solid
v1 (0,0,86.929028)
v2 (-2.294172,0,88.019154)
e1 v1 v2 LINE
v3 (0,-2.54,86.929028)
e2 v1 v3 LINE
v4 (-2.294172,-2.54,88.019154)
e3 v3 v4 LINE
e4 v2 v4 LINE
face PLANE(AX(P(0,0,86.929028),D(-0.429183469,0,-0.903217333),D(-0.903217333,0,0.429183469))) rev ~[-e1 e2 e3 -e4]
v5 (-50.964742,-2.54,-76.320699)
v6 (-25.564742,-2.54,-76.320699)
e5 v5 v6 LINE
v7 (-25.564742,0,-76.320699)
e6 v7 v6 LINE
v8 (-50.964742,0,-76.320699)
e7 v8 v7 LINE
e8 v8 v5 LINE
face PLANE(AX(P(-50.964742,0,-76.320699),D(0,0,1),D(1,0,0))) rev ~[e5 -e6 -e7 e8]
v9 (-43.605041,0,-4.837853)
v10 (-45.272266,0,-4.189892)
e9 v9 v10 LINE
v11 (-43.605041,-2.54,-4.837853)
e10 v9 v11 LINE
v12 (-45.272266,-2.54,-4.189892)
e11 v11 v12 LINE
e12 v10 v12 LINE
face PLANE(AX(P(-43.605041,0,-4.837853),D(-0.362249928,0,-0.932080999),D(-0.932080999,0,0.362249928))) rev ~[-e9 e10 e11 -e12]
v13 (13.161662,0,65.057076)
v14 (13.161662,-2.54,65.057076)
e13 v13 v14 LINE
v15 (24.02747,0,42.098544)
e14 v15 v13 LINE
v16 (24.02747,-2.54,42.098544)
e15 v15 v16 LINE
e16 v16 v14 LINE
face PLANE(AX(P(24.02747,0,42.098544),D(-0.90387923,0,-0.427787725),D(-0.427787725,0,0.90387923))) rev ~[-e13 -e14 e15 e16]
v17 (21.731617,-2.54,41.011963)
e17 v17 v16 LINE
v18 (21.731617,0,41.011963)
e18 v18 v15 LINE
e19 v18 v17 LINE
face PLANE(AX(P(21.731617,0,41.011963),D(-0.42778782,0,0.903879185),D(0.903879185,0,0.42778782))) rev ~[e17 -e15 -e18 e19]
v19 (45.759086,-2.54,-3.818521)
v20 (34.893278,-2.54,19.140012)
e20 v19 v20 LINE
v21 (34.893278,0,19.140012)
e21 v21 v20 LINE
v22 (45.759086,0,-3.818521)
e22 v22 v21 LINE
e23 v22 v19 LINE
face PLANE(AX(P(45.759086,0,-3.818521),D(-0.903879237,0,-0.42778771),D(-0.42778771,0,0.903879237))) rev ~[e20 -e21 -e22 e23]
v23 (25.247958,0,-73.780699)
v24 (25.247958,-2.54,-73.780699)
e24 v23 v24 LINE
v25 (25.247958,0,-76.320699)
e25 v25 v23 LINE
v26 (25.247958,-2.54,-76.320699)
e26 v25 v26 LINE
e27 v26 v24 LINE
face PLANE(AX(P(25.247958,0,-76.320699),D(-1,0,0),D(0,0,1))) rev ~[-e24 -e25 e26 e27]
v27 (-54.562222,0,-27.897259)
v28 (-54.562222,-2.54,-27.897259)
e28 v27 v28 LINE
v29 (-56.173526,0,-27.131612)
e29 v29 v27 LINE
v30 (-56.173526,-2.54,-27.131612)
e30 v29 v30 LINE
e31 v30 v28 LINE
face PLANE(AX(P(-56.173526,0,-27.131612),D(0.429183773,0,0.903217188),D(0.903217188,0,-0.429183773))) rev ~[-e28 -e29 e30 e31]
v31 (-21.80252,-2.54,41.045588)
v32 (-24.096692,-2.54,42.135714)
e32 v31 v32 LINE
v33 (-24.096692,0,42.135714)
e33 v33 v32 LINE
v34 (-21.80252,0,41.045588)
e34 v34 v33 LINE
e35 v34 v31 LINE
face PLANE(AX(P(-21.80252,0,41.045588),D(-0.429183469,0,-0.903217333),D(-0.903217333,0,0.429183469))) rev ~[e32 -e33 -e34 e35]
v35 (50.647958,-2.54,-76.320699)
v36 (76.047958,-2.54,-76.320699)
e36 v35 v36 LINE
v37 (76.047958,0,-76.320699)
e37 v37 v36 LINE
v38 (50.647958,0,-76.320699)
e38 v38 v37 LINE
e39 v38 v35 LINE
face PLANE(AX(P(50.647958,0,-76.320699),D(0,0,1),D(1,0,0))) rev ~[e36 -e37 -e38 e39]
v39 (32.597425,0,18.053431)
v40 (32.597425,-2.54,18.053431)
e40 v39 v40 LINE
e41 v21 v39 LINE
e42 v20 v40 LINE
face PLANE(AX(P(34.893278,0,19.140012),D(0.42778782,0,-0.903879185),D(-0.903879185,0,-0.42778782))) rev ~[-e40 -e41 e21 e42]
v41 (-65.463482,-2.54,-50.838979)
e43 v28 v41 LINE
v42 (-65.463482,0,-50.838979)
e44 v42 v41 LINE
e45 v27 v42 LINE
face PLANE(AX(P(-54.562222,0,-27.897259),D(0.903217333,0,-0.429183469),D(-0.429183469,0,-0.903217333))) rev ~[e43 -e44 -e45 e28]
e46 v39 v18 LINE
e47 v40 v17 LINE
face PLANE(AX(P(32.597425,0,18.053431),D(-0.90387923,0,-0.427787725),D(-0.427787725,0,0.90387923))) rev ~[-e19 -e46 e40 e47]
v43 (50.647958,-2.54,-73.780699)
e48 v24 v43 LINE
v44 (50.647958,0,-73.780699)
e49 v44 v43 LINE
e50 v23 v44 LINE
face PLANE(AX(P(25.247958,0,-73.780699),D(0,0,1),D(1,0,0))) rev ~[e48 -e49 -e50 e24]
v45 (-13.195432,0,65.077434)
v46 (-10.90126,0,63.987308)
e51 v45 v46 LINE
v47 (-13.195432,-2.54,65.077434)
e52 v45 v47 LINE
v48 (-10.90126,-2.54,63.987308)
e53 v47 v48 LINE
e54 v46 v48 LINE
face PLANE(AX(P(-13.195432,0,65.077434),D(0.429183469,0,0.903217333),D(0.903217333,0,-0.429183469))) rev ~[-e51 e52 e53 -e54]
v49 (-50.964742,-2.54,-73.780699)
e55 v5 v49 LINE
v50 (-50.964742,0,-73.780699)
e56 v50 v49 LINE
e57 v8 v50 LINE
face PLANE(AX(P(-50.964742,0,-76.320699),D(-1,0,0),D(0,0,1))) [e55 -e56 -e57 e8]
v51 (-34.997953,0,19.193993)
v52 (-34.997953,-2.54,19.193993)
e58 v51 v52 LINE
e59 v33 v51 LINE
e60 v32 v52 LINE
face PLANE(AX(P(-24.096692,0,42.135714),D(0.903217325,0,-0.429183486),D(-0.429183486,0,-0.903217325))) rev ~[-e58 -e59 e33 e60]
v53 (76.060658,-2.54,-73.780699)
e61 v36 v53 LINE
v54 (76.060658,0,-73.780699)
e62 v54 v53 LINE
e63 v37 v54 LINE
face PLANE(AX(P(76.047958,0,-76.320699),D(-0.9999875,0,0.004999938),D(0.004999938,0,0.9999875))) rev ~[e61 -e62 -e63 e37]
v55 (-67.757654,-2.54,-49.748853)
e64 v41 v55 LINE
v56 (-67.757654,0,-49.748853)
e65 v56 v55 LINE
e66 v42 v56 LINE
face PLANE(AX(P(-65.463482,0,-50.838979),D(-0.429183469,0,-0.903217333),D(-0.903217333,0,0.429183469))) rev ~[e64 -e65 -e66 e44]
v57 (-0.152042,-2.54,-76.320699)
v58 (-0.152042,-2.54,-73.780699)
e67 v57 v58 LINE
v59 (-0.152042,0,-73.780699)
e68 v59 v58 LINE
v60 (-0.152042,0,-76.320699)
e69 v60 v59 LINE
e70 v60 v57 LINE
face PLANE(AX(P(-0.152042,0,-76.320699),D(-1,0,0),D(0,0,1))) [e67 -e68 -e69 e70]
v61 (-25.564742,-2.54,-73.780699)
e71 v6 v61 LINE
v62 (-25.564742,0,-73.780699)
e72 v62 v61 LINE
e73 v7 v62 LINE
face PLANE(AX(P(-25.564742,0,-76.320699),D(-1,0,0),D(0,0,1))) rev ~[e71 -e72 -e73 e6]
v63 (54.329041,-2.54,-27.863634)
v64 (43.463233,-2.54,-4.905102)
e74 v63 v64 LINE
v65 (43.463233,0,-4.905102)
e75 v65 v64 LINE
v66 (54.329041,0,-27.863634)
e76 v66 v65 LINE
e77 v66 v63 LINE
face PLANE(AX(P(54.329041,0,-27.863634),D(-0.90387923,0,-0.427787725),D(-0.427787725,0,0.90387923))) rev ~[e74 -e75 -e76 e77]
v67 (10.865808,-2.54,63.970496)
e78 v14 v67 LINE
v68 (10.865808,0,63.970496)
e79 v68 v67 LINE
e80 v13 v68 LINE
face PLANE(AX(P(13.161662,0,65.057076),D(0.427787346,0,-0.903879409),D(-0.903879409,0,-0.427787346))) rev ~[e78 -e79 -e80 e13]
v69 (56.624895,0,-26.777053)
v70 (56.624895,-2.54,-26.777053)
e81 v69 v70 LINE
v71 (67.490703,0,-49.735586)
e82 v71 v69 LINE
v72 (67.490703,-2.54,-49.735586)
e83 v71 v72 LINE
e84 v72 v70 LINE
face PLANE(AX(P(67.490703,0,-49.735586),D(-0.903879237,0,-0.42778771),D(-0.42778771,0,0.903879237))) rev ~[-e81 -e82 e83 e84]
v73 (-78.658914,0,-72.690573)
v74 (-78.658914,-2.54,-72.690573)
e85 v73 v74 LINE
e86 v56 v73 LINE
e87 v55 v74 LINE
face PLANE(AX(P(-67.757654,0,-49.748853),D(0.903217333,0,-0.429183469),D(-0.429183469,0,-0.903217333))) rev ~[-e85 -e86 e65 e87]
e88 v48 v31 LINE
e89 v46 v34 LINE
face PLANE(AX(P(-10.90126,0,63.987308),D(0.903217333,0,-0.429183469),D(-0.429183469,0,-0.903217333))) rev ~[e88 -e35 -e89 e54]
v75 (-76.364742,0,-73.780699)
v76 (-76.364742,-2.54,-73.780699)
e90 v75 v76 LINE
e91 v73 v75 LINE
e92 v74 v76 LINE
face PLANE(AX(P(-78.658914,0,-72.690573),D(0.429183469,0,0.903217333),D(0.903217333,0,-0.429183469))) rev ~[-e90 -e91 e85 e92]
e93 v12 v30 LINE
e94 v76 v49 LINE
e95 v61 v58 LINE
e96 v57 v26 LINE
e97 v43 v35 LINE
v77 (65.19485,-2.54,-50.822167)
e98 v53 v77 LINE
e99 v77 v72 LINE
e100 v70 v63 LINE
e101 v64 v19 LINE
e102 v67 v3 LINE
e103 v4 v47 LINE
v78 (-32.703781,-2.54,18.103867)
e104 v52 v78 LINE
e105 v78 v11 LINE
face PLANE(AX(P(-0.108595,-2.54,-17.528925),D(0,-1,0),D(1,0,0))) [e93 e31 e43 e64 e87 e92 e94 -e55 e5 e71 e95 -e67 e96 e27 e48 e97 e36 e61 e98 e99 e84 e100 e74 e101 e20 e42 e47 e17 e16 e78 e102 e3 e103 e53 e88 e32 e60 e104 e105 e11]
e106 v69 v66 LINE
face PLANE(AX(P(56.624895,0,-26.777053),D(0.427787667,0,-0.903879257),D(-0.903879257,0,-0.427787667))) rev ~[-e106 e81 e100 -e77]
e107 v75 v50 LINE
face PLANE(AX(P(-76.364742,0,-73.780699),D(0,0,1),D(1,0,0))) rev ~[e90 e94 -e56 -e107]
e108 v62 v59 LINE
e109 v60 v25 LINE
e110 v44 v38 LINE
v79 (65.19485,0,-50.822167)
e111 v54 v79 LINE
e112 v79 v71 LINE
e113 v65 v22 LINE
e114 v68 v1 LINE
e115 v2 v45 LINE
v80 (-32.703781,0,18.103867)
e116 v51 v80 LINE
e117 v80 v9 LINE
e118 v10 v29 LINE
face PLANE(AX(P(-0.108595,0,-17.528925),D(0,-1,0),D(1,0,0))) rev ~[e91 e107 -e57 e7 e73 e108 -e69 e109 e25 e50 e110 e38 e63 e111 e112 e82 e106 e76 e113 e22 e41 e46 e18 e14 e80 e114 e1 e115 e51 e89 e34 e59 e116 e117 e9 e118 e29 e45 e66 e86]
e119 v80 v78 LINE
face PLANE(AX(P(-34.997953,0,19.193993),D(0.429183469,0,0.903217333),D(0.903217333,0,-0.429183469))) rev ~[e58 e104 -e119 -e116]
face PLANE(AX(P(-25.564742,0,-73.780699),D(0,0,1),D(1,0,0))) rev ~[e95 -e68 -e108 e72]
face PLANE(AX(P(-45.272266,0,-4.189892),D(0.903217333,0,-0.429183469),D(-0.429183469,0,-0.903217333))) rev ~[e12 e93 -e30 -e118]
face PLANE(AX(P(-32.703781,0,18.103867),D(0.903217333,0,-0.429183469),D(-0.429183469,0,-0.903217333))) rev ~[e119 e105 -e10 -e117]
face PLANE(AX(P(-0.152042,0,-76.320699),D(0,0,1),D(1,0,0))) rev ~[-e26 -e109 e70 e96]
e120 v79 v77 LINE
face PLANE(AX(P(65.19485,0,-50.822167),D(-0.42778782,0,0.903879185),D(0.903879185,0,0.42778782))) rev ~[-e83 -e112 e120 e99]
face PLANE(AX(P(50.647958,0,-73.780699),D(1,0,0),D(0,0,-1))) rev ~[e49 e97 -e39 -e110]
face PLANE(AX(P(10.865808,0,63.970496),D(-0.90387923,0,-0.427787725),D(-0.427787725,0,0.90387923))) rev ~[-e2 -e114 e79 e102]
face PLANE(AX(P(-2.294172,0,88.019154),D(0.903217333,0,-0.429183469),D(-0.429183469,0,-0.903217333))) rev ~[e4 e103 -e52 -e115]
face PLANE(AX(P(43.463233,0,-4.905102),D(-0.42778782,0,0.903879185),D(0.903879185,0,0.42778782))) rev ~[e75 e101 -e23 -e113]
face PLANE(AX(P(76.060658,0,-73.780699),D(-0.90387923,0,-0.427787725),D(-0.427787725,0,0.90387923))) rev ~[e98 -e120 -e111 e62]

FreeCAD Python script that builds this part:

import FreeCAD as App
import Part
import Sketcher
from FreeCAD import Vector
Q = App.Units.Quantity

doc = App.newDocument("Part")
body = doc.addObject("PartDesign::Body", "Body")

sketch1 = body.newObject("Sketcher::SketchObject", "Sketch")
sketch1.AttachmentSupport = (doc.getObject("XZ_Plane"), [""])
sketch1.MapMode = "FlatFace"
sketch1.addGeometry(Part.LineSegment(Vector(-10.9, 64, 0), Vector(-21.8, 41, 0)), False)
sketch1.addGeometry(Part.LineSegment(Vector(-21.8, 41, 0), Vector(-24.1, 42.1, 0)), False)
sketch1.addGeometry(Part.LineSegment(Vector(-24.1, 42.1, 0), Vector(-35, 19.2, 0)), False)
sketch1.addGeometry(Part.LineSegment(Vector(-35, 19.2, 0), Vector(-32.7, 18.1, 0)), False)
sketch1.addGeometry(Part.LineSegment(Vector(-32.7, 18.1, 0), Vector(-43.6, -4.8, 0)), False)
sketch1.addGeometry(Part.LineSegment(Vector(-43.6, -4.8, 0), Vector(-45.3, -4.2, 0)), False)
sketch1.addGeometry(Part.LineSegment(Vector(-45.3, -4.2, 0), Vector(-56.2, -27.1, 0)), False)
sketch1.addGeometry(Part.LineSegment(Vector(-56.2, -27.1, 0), Vector(-54.6, -27.9, 0)), False)
sketch1.addGeometry(Part.LineSegment(Vector(-54.6, -27.9, 0), Vector(-65.5, -50.8, 0)), False)
sketch1.addGeometry(Part.LineSegment(Vector(-65.5, -50.8, 0), Vector(-67.8, -49.7, 0)), False)
sketch1.addGeometry(Part.LineSegment(Vector(-67.8, -49.7, 0), Vector(-78.7, -72.7, 0)), False)
sketch1.addGeometry(Part.LineSegment(Vector(-78.7, -72.7, 0), Vector(-76.4, -73.8, 0)), False)
sketch1.addGeometry(Part.LineSegment(Vector(-76.4, -73.8, 0), Vector(-51, -73.8, 0)), False)
sketch1.addGeometry(Part.LineSegment(Vector(-51, -73.8, 0), Vector(-51, -76.3, 0)), False)
sketch1.addGeometry(Part.LineSegment(Vector(-51, -76.3, 0), Vector(-25.6, -76.3, 0)), False)
sketch1.addGeometry(Part.LineSegment(Vector(-25.6, -76.3, 0), Vector(-25.6, -73.8, 0)), False)
sketch1.addGeometry(Part.LineSegment(Vector(-25.6, -73.8, 0), Vector(-0.2, -73.8, 0)), False)
sketch1.addGeometry(Part.LineSegment(Vector(-0.2, -73.8, 0), Vector(-0.2, -76.3, 0)), False)
sketch1.addGeometry(Part.LineSegment(Vector(-0.2, -76.3, 0), Vector(25.2, -76.3, 0)), False)
sketch1.addGeometry(Part.LineSegment(Vector(25.2, -76.3, 0), Vector(25.2, -73.8, 0)), False)
sketch1.addGeometry(Part.LineSegment(Vector(25.2, -73.8, 0), Vector(50.6, -73.8, 0)), False)
sketch1.addGeometry(Part.LineSegment(Vector(50.6, -73.8, 0), Vector(50.6, -76.3, 0)), False)
sketch1.addGeometry(Part.LineSegment(Vector(50.6, -76.3, 0), Vector(76, -76.3, 0)), False)
sketch1.addGeometry(Part.LineSegment(Vector(76, -76.3, 0), Vector(76.1, -73.8, 0)), False)
sketch1.addGeometry(Part.LineSegment(Vector(76.1, -73.8, 0), Vector(65.2, -50.8, 0)), False)
sketch1.addGeometry(Part.LineSegment(Vector(65.2, -50.8, 0), Vector(67.5, -49.7, 0)), False)
sketch1.addGeometry(Part.LineSegment(Vector(67.5, -49.7, 0), Vector(56.6, -26.8, 0)), False)
sketch1.addGeometry(Part.LineSegment(Vector(56.6, -26.8, 0), Vector(54.3, -27.9, 0)), False)
sketch1.addGeometry(Part.LineSegment(Vector(54.3, -27.9, 0), Vector(43.5, -4.9, 0)), False)
sketch1.addGeometry(Part.LineSegment(Vector(43.5, -4.9, 0), Vector(45.8, -3.8, 0)), False)
sketch1.addGeometry(Part.LineSegment(Vector(45.8, -3.8, 0), Vector(34.9, 19.1, 0)), False)
sketch1.addGeometry(Part.LineSegment(Vector(34.9, 19.1, 0), Vector(32.6, 18.1, 0)), False)
sketch1.addGeometry(Part.LineSegment(Vector(32.6, 18.1, 0), Vector(21.7, 41, 0)), False)
sketch1.addGeometry(Part.LineSegment(Vector(21.7, 41, 0), Vector(24, 42.1, 0)), False)
sketch1.addGeometry(Part.LineSegment(Vector(24, 42.1, 0), Vector(13.2, 65.1, 0)), False)
sketch1.addGeometry(Part.LineSegment(Vector(13.2, 65.1, 0), Vector(10.9, 64, 0)), False)
sketch1.addGeometry(Part.LineSegment(Vector(10.9, 64, 0), Vector(0, 86.9, 0)), False)
sketch1.addGeometry(Part.LineSegment(Vector(0, 86.9, 0), Vector(-2.3, 88, 0)), False)
sketch1.addGeometry(Part.LineSegment(Vector(-2.3, 88, 0), Vector(-13.2, 65.1, 0)), False)
sketch1.addGeometry(Part.LineSegment(Vector(-13.2, 65.1, 0), Vector(-10.9, 64, 0)), False)
sketch1.addConstraint(Sketcher.Constraint("Coincident", 0, 2, 1, 1))
sketch1.addConstraint(Sketcher.Constraint("Coincident", 1, 2, 2, 1))
sketch1.addConstraint(Sketcher.Constraint("Coincident", 2, 2, 3, 1))
sketch1.addConstraint(Sketcher.Constraint("Coincident", 3, 2, 4, 1))
sketch1.addConstraint(Sketcher.Constraint("Coincident", 4, 2, 5, 1))
sketch1.addConstraint(Sketcher.Constraint("Coincident", 5, 2, 6, 1))
sketch1.addConstraint(Sketcher.Constraint("Coincident", 6, 2, 7, 1))
sketch1.addConstraint(Sketcher.Constraint("Coincident", 7, 2, 8, 1))
sketch1.addConstraint(Sketcher.Constraint("Coincident", 8, 2, 9, 1))
sketch1.addConstraint(Sketcher.Constraint("Coincident", 9, 2, 10, 1))
sketch1.addConstraint(Sketcher.Constraint("Coincident", 10, 2, 11, 1))
sketch1.addConstraint(Sketcher.Constraint("Coincident", 11, 2, 12, 1))
sketch1.addConstraint(Sketcher.Constraint("Coincident", 12, 2, 13, 1))
sketch1.addConstraint(Sketcher.Constraint("Coincident", 13, 2, 14, 1))
sketch1.addConstraint(Sketcher.Constraint("Coincident", 14, 2, 15, 1))
sketch1.addConstraint(Sketcher.Constraint("Coincident", 15, 2, 16, 1))
sketch1.addConstraint(Sketcher.Constraint("Coincident", 16, 2, 17, 1))
sketch1.addConstraint(Sketcher.Constraint("Coincident", 17, 2, 18, 1))
sketch1.addConstraint(Sketcher.Constraint("Coincident", 18, 2, 19, 1))
sketch1.addConstraint(Sketcher.Constraint("Coincident", 19, 2, 20, 1))
sketch1.addConstraint(Sketcher.Constraint("Coincident", 20, 2, 21, 1))
sketch1.addConstraint(Sketcher.Constraint("Coincident", 21, 2, 22, 1))
sketch1.addConstraint(Sketcher.Constraint("Coincident", 22, 2, 23, 1))
sketch1.addConstraint(Sketcher.Constraint("Coincident", 23, 2, 24, 1))
sketch1.addConstraint(Sketcher.Constraint("Coincident", 24, 2, 25, 1))
sketch1.addConstraint(Sketcher.Constraint("Coincident", 25, 2, 26, 1))
sketch1.addConstraint(Sketcher.Constraint("Coincident", 26, 2, 27, 1))
sketch1.addConstraint(Sketcher.Constraint("Coincident", 27, 2, 28, 1))
sketch1.addConstraint(Sketcher.Constraint("Coincident", 28, 2, 29, 1))
sketch1.addConstraint(Sketcher.Constraint("Coincident", 29, 2, 30, 1))
sketch1.addConstraint(Sketcher.Constraint("Coincident", 30, 2, 31, 1))
sketch1.addConstraint(Sketcher.Constraint("Coincident", 31, 2, 32, 1))
sketch1.addConstraint(Sketcher.Constraint("Coincident", 32, 2, 33, 1))
sketch1.addConstraint(Sketcher.Constraint("Coincident", 33, 2, 34, 1))
sketch1.addConstraint(Sketcher.Constraint("Coincident", 34, 2, 35, 1))
sketch1.addConstraint(Sketcher.Constraint("Coincident", 35, 2, 36, 1))
sketch1.addConstraint(Sketcher.Constraint("Coincident", 36, 2, 37, 1))
sketch1.addConstraint(Sketcher.Constraint("Coincident", 37, 2, 38, 1))
sketch1.addConstraint(Sketcher.Constraint("Coincident", 38, 2, 39, 1))
sketch1.addConstraint(Sketcher.Constraint("Coincident", 39, 2, 0, 1))
sketch1.addConstraint(Sketcher.Constraint("Horizontal", 12))
sketch1.addConstraint(Sketcher.Constraint("Vertical", 13))
sketch1.addConstraint(Sketcher.Constraint("Horizontal", 14))
sketch1.addConstraint(Sketcher.Constraint("Vertical", 15))
sketch1.addConstraint(Sketcher.Constraint("Horizontal", 16))
sketch1.addConstraint(Sketcher.Constraint("Vertical", 17))
sketch1.addConstraint(Sketcher.Constraint("Horizontal", 18))
sketch1.addConstraint(Sketcher.Constraint("Vertical", 19))
sketch1.addConstraint(Sketcher.Constraint("Horizontal", 20))
sketch1.addConstraint(Sketcher.Constraint("Vertical", 21))
sketch1.addConstraint(Sketcher.Constraint("Horizontal", 22))
sketch1.addConstraint(Sketcher.Constraint("PointOnObject", 36, 2, -2))
sketch1.addConstraint(Sketcher.Constraint("Perpendicular", 0, 1))
sketch1.addConstraint(Sketcher.Constraint("Perpendicular", 1, 2))
sketch1.addConstraint(Sketcher.Constraint("Perpendicular", 2, 3))
sketch1.addConstraint(Sketcher.Constraint("Perpendicular", 3, 4))
sketch1.addConstraint(Sketcher.Constraint("Parallel", 4, 6))
sketch1.addConstraint(Sketcher.Constraint("Perpendicular", 6, 7))
sketch1.addConstraint(Sketcher.Constraint("Perpendicular", 7, 8))
sketch1.addConstraint(Sketcher.Constraint("Perpendicular", 8, 9))
sketch1.addConstraint(Sketcher.Constraint("Perpendicular", 9, 10))
sketch1.addConstraint(Sketcher.Constraint("Perpendicular", 10, 11))
sketch1.addConstraint(Sketcher.Constraint("Perpendicular", 24, 25))
sketch1.addConstraint(Sketcher.Constraint("Perpendicular", 25, 26))
sketch1.addConstraint(Sketcher.Constraint("Perpendicular", 26, 27))
sketch1.addConstraint(Sketcher.Constraint("Perpendicular", 27, 28))
sketch1.addConstraint(Sketcher.Constraint("Perpendicular", 28, 29))
sketch1.addConstraint(Sketcher.Constraint("Perpendicular", 29, 30))
sketch1.addConstraint(Sketcher.Constraint("Perpendicular", 30, 31))
sketch1.addConstraint(Sketcher.Constraint("Perpendicular", 31, 32))
sketch1.addConstraint(Sketcher.Constraint("Perpendicular", 32, 33))
sketch1.addConstraint(Sketcher.Constraint("Perpendicular", 33, 34))
sketch1.addConstraint(Sketcher.Constraint("Perpendicular", 34, 35))
sketch1.addConstraint(Sketcher.Constraint("Perpendicular", 35, 36))
sketch1.addConstraint(Sketcher.Constraint("Parallel", 11, 37))
sketch1.addConstraint(Sketcher.Constraint("Perpendicular", 37, 38))
sketch1.addConstraint(Sketcher.Constraint("Perpendicular", 38, 39))
sketch1.addConstraint(Sketcher.Constraint("Horizontal", 12, 2, 15, 2))
sketch1.addConstraint(Sketcher.Constraint("Horizontal", 14, 2, 17, 2))
sketch1.addConstraint(Sketcher.Constraint("Horizontal", 16, 2, 19, 2))
sketch1.addConstraint(Sketcher.Constraint("Horizontal", 18, 2, 21, 2))
sketch1.addConstraint(Sketcher.Constraint("Horizontal", 20, 2, 23, 2))
sketch1.addConstraint(Sketcher.Constraint("Equal", 12, 14))
sketch1.addConstraint(Sketcher.Constraint("Equal", 14, 18))
sketch1.addConstraint(Sketcher.Constraint("Equal", 18, 20))
sketch1.addConstraint(Sketcher.Constraint("Equal", 20, 22))
sketch1.addConstraint(Sketcher.Constraint("Equal", 0, 2))
sketch1.addConstraint(Sketcher.Constraint("Equal", 1, 3))
sketch1.addConstraint(Sketcher.Constraint("Equal", 2, 4))
sketch1.addConstraint(Sketcher.Constraint("Equal", 4, 6))
sketch1.addConstraint(Sketcher.Constraint("Equal", 6, 8))
sketch1.addConstraint(Sketcher.Constraint("Equal", 3, 9))
sketch1.addConstraint(Sketcher.Constraint("Equal", 8, 10))
sketch1.addConstraint(Sketcher.Constraint("Equal", 9, 11))
sketch1.addConstraint(Sketcher.Constraint("Equal", 10, 24))
sketch1.addConstraint(Sketcher.Constraint("Equal", 11, 25))
sketch1.addConstraint(Sketcher.Constraint("Equal", 24, 26))
sketch1.addConstraint(Sketcher.Constraint("Equal", 25, 27))
sketch1.addConstraint(Sketcher.Constraint("Equal", 26, 28))
sketch1.addConstraint(Sketcher.Constraint("Equal", 27, 29))
sketch1.addConstraint(Sketcher.Constraint("Equal", 28, 30))
sketch1.addConstraint(Sketcher.Constraint("Equal", 29, 31))
sketch1.addConstraint(Sketcher.Constraint("Equal", 30, 32))
sketch1.addConstraint(Sketcher.Constraint("Equal", 31, 33))
sketch1.addConstraint(Sketcher.Constraint("Equal", 32, 34))
sketch1.addConstraint(Sketcher.Constraint("Equal", 33, 35))
sketch1.addConstraint(Sketcher.Constraint("Equal", 34, 36))
sketch1.addConstraint(Sketcher.Constraint("Equal", 35, 37))
sketch1.addConstraint(Sketcher.Constraint("Equal", 36, 38))
sketch1.addConstraint(Sketcher.Constraint("Equal", 37, 39))
sketch1.addConstraint(Sketcher.Constraint("DistanceX", 12, 1, 12, 2, Q("1 in")))
sketch1.addConstraint(Sketcher.Constraint("Distance", 0, Q("1 in")))
sketch1.addConstraint(Sketcher.Constraint("DistanceY", 13, 2, 13, 1, Q("0.1 in")))
sketch1.addConstraint(Sketcher.Constraint("Distance", 1, Q("0.1 in")))
sketch1.addConstraint(Sketcher.Constraint("DistanceX", 16, 1, 16, 2, Q("1.0005 in")))
sketch1.addConstraint(Sketcher.Constraint("DistanceX", 22, 2, 23, 2, Q("0.0005 in")))
sketch1.addConstraint(Sketcher.Constraint("DistanceX", 25, 2, 23, 2, Q("0.3373998 in")))
sketch1.addConstraint(Sketcher.Constraint("DistanceY", 11, 2, -1, 1, Q("73.780699 mm")))
sketch1.addConstraint(Sketcher.Constraint("DistanceX", 8, 2, 3, 2, Q("32.759701 mm")))
sketch1.addConstraint(Sketcher.Constraint("Distance", 7, Q("1.783961 mm")))
pad1 = body.newObject("PartDesign::Pad", "Pad")
pad1.Profile = sketch1
pad1.Length = Q("0.1 in")

doc.recompute()
